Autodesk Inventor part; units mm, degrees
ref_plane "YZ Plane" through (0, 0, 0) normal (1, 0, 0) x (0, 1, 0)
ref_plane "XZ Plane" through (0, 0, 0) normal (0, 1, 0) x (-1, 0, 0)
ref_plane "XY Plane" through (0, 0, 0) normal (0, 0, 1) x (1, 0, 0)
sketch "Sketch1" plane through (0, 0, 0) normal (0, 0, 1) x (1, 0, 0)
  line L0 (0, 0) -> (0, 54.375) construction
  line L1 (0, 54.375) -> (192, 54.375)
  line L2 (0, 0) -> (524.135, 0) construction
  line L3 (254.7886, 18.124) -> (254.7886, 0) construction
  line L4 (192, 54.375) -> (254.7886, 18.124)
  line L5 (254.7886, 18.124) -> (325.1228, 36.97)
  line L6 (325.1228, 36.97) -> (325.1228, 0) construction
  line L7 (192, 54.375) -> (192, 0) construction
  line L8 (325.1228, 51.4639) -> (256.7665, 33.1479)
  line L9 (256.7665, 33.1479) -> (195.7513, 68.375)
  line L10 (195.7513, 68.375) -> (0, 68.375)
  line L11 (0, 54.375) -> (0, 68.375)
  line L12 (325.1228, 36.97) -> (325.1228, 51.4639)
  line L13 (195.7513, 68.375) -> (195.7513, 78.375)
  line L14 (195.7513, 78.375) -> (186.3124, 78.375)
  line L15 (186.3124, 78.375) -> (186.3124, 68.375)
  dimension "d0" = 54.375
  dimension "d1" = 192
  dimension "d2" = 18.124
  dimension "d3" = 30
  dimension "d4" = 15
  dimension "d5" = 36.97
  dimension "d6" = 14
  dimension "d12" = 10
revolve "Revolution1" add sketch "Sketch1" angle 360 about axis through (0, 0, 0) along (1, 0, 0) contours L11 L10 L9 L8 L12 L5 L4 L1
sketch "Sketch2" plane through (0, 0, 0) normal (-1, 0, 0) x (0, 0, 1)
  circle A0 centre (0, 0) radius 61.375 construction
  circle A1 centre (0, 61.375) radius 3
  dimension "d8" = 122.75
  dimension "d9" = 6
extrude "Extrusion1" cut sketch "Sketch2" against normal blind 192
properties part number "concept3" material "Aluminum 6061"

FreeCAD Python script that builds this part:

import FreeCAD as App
import Part
import Sketcher
from FreeCAD import Vector
Q = App.Units.Quantity

doc = App.newDocument("Part")
body = doc.addObject("PartDesign::Body", "Body")

# Sketch on XY plane
sketch1 = body.newObject("Sketcher::SketchObject", "Sketch")
sketch1.AttachmentSupport = (doc.getObject("XY_Plane"), [""])
sketch1.MapMode = "FlatFace"
sketch1.addGeometry([
    Part.LineSegment(Vector(0, 68, 0), Vector(0, 54, 0)),  # 0
    Part.LineSegment(Vector(0, 54, 0), Vector(192, 54, 0)),  # 1
    Part.LineSegment(Vector(192, 54, 0), Vector(255, 18, 0)),  # 2
    Part.LineSegment(Vector(255, 18, 0), Vector(325, 37, 0)),  # 3
    Part.LineSegment(Vector(325, 37, 0), Vector(325, 51, 0)),  # 4
    Part.LineSegment(Vector(325, 51, 0), Vector(257, 33, 0)),  # 5
    Part.LineSegment(Vector(257, 33, 0), Vector(196, 68, 0)),  # 6
    Part.LineSegment(Vector(196, 68, 0), Vector(0, 68, 0)),  # 7
], False)
sketch1.addConstraint([
    Sketcher.Constraint("Coincident", 0, 2, 1, 1),
    Sketcher.Constraint("Coincident", 1, 2, 2, 1),
    Sketcher.Constraint("Coincident", 2, 2, 3, 1),
    Sketcher.Constraint("Coincident", 3, 2, 4, 1),
    Sketcher.Constraint("Coincident", 4, 2, 5, 1),
    Sketcher.Constraint("Coincident", 5, 2, 6, 1),
    Sketcher.Constraint("Coincident", 6, 2, 7, 1),
    Sketcher.Constraint("Coincident", 7, 2, 0, 1),
    Sketcher.Constraint("Vertical", 0),
    Sketcher.Constraint("Horizontal", 1),
    Sketcher.Constraint("Vertical", 4),
    Sketcher.Constraint("Horizontal", 7),
    Sketcher.Constraint("PointOnObject", 0, 2, -2),
    Sketcher.Constraint("Parallel", 3, 5),
    Sketcher.Constraint("Parallel", 2, 6),
    Sketcher.Constraint("DistanceX", 1, 1, 1, 2, Q("192 mm")),
    Sketcher.Constraint("DistanceY", 0, 2, 0, 1, Q("14 mm")),
    Sketcher.Constraint("Angle", 2, Q("-30 deg")),
    Sketcher.Constraint("Angle", 3, Q("15 deg")),
    Sketcher.Constraint("DistanceY", -1, 1, 3, 2, Q("36.97 mm")),
    Sketcher.Constraint("DistanceY", -1, 1, 0, 2, Q("54.375 mm")),
    Sketcher.Constraint("DistanceY", -1, 1, 2, 2, Q("18.124 mm")),
    Sketcher.Constraint("DistanceY", 4, 1, 4, 2, Q("14.494 mm")),
    Sketcher.Constraint("DistanceX", 7, 2, 7, 1, Q("195.7513 mm")),
])
revolution = body.newObject("PartDesign::Revolution", "Revolution")
revolution.Profile = sketch1
revolution.ReferenceAxis = (sketch1, ["H_Axis"])
revolution.Angle = 360

# Sketch on YZ plane
sketch2 = body.newObject("Sketcher::SketchObject", "Sketch001")
sketch2.AttachmentSupport = (doc.getObject("YZ_Plane"), [""])
sketch2.MapMode = "FlatFace"
sketch2.addGeometry(Part.Circle(Vector(61.4, 0, 0), Vector(0, 0, 1), 3), False)
sketch2.addConstraint([
    Sketcher.Constraint("PointOnObject", 0, 3, -1),
    Sketcher.Constraint("Diameter", 0, Q("6 mm")),
    Sketcher.Constraint("DistanceX", -1, 1, 0, 3, Q("61.375 mm")),
])
pocket1 = body.newObject("PartDesign::Pocket", "Pocket")
pocket1.Profile = sketch2
pocket1.Length = 192
pocket1.Reversed = True

doc.recompute()
